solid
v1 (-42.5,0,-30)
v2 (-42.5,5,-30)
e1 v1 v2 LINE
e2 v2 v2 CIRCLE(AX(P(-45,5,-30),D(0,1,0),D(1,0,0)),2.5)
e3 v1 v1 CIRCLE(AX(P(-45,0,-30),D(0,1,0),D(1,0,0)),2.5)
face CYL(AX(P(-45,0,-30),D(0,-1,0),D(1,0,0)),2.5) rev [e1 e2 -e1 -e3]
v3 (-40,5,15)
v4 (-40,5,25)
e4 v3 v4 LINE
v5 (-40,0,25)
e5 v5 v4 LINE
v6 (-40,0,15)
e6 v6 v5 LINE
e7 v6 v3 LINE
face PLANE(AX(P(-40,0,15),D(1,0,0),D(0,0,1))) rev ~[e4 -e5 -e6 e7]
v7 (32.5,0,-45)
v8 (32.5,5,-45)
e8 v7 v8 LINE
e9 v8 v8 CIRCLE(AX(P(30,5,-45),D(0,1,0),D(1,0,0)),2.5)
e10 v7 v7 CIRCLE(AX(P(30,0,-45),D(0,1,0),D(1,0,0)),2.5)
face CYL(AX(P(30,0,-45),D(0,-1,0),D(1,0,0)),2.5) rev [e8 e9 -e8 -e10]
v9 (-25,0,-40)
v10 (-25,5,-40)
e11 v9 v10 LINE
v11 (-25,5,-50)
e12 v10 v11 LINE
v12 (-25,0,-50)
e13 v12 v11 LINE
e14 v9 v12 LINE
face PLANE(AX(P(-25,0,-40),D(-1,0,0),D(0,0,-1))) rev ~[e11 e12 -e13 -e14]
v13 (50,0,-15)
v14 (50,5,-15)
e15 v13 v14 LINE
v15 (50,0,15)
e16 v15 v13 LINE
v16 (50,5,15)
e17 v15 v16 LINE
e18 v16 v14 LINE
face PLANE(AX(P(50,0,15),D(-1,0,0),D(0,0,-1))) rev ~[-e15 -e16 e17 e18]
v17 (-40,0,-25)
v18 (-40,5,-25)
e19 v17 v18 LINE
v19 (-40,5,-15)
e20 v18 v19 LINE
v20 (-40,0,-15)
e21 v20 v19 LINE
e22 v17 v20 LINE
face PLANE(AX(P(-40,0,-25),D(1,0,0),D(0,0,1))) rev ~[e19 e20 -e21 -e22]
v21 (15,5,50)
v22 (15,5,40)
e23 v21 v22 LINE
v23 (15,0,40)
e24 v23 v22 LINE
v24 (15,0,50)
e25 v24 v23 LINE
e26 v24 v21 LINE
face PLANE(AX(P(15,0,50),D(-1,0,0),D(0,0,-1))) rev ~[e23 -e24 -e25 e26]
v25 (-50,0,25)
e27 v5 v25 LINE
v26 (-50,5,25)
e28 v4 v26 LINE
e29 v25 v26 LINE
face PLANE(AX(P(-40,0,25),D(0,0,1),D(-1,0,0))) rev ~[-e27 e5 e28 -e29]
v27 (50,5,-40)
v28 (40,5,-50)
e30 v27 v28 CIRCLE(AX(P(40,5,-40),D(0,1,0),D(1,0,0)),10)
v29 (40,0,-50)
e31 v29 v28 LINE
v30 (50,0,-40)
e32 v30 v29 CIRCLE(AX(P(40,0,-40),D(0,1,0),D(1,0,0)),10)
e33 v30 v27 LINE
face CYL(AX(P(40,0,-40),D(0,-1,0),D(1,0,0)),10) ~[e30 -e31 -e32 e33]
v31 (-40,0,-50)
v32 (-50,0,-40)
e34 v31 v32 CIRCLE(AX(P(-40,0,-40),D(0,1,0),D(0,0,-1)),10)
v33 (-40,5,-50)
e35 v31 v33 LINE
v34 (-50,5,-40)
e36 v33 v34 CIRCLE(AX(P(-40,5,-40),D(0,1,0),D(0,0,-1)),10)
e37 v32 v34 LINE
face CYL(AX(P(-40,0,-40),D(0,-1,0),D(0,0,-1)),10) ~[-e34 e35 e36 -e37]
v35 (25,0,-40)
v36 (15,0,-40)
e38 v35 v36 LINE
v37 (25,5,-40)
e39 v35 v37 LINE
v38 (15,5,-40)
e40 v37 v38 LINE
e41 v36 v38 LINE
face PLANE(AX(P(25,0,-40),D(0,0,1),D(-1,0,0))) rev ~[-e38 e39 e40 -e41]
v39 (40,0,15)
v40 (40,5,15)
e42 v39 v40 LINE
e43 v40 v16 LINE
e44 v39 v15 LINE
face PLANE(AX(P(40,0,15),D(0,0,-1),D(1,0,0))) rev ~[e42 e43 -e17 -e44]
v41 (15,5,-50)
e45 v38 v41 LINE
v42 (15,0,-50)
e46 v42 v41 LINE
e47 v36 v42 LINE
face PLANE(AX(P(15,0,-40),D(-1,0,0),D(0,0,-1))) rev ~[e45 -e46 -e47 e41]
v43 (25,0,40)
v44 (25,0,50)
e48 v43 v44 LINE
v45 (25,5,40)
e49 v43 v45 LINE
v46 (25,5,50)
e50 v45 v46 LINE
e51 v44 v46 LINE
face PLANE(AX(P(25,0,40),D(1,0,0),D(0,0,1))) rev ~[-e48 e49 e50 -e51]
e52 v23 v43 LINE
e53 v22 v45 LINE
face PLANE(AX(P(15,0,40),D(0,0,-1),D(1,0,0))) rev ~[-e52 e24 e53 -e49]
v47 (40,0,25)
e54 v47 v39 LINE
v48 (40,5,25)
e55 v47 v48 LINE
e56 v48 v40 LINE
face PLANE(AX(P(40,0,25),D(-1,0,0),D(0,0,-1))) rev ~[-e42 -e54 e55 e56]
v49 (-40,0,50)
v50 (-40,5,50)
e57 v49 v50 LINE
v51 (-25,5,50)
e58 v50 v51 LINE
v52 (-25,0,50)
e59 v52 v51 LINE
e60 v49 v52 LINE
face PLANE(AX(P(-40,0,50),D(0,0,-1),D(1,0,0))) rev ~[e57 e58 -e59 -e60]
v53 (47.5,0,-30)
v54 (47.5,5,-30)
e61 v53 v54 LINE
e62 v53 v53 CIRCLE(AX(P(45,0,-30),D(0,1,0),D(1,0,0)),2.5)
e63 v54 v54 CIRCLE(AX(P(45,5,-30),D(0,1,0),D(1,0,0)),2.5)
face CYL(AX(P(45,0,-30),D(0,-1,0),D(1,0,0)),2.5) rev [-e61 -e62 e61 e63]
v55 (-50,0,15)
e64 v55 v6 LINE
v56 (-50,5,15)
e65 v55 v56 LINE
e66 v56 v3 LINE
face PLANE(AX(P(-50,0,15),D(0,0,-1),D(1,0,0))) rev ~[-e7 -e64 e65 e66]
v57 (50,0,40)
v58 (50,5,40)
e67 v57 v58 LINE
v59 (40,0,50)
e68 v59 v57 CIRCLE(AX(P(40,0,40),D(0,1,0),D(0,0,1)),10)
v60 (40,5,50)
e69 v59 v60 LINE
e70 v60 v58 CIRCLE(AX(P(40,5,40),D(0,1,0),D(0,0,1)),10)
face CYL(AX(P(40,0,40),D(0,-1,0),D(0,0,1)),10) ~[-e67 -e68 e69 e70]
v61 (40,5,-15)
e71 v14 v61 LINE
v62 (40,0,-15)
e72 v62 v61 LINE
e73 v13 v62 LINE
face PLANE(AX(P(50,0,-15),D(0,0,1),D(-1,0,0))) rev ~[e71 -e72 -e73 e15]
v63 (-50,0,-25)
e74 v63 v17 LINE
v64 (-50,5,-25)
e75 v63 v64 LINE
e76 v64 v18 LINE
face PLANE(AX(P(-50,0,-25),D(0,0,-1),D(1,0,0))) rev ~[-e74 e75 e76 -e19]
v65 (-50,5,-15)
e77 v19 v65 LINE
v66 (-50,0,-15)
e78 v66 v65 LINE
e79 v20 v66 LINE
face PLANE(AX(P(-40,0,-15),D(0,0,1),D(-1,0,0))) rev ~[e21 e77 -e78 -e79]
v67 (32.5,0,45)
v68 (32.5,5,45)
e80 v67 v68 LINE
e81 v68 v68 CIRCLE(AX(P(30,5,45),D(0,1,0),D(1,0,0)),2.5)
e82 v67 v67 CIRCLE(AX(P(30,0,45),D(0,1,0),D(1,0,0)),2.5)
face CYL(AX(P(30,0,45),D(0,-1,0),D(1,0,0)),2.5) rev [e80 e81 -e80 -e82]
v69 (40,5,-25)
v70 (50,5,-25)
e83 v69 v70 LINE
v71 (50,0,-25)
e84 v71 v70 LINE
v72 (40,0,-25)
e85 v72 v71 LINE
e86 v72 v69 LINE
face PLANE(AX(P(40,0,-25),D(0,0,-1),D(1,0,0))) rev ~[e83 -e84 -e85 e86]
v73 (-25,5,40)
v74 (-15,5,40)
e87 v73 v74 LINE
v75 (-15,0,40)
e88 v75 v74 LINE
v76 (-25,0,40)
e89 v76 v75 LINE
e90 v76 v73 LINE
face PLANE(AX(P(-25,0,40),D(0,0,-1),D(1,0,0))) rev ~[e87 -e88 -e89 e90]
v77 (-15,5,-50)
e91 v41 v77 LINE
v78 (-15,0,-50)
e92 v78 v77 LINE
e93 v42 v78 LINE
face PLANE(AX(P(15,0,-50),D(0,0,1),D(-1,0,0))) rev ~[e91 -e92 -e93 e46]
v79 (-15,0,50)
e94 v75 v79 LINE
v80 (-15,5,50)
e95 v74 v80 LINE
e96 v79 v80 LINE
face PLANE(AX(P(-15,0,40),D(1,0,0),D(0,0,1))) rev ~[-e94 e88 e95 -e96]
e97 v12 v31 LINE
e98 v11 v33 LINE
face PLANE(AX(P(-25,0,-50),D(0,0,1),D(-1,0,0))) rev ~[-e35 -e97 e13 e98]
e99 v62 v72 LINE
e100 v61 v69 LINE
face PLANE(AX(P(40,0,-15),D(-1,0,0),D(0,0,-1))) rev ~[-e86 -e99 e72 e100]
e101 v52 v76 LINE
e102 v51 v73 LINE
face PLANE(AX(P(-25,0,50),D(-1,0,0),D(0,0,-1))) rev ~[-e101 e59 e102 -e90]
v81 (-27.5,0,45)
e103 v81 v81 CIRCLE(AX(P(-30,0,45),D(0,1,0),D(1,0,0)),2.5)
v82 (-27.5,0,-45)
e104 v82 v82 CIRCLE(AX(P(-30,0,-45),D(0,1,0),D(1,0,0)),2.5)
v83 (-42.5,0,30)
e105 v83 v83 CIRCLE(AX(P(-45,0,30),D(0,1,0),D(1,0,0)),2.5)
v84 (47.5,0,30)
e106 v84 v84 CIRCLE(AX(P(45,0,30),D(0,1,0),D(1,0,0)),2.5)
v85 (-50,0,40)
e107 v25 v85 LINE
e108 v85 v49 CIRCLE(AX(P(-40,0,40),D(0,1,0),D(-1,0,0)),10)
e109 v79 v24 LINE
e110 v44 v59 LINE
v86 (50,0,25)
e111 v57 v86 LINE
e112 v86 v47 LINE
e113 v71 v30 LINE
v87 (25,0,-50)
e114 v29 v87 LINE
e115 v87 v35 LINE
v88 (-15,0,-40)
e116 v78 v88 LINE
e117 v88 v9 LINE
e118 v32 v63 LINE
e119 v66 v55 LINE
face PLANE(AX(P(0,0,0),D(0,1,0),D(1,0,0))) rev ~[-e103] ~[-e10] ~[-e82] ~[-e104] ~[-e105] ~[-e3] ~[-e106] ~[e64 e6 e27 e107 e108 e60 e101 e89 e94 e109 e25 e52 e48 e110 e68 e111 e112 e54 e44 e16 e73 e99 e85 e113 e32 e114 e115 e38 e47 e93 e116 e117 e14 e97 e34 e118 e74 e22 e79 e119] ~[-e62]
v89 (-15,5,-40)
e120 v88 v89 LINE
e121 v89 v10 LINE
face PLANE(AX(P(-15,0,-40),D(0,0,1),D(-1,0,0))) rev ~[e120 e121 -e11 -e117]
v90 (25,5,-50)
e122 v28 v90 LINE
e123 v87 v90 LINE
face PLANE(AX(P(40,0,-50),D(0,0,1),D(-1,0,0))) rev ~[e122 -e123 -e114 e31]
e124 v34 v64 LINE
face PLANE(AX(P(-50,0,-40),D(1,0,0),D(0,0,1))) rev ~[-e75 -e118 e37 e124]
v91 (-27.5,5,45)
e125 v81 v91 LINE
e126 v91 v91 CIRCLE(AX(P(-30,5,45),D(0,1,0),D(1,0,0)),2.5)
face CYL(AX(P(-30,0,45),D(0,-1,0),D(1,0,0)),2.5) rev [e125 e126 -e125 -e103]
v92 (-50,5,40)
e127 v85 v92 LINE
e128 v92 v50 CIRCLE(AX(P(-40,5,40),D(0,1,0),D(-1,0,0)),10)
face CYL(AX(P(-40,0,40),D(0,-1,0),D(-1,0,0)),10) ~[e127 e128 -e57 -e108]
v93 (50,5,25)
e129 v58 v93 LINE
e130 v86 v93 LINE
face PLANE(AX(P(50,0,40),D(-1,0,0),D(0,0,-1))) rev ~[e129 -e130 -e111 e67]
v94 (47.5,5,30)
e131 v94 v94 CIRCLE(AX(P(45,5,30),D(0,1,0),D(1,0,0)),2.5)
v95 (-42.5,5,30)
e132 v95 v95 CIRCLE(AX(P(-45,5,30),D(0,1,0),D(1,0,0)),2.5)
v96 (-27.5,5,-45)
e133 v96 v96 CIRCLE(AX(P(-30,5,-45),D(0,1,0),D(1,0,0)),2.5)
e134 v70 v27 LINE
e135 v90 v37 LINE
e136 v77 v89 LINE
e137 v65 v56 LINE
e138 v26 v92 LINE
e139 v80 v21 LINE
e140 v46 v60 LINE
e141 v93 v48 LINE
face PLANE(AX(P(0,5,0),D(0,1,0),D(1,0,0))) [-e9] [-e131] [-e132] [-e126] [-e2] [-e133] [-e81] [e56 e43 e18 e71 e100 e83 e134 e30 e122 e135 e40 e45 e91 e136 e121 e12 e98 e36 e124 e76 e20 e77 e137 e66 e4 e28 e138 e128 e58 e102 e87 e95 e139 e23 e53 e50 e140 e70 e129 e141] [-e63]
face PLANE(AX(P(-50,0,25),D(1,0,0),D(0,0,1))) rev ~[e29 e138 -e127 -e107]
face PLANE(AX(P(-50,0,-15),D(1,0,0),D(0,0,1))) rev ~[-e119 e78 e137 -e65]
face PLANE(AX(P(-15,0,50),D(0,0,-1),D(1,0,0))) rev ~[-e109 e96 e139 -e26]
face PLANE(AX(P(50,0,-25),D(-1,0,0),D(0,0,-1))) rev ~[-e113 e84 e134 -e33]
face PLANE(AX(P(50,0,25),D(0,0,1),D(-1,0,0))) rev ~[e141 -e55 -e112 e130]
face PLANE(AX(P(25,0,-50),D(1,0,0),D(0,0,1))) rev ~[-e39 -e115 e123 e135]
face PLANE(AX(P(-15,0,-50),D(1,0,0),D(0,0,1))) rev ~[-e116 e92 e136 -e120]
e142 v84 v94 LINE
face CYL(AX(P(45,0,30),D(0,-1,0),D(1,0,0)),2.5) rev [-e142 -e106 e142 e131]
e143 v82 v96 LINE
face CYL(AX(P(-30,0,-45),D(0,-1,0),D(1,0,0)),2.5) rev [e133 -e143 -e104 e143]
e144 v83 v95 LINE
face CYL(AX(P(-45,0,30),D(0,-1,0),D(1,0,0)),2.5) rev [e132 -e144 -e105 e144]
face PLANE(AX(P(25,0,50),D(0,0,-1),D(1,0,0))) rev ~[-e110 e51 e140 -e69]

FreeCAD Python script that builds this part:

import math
import FreeCAD as App
import Part
import Sketcher
from FreeCAD import Vector

doc = App.newDocument("Part")
body = doc.addObject("PartDesign::Body", "Body")

# Sketch on XZ plane
sketch1 = doc.addObject("Sketcher::SketchObject", "Sketch")
body.addObject(sketch1)
sketch1.AttachmentSupport = (doc.XZ_Plane, [""])
sketch1.MapMode = "FlatFace"
sketch1.addGeometry([
    Part.LineSegment(Vector(25, 50, 0), Vector(40, 50, 0)),  # 0
    Part.ArcOfCircle(Part.Circle(Vector(40, 40, 0), Vector(0, 0, 1), 10), math.radians(0), math.radians(90)),  # 1
    Part.LineSegment(Vector(50, 40, 0), Vector(50, 25, 0)),  # 2
    Part.LineSegment(Vector(50, 25, 0), Vector(40, 25, 0)),  # 3
    Part.LineSegment(Vector(40, 25, 0), Vector(40, 15, 0)),  # 4
    Part.LineSegment(Vector(40, 15, 0), Vector(50, 15, 0)),  # 5
    Part.LineSegment(Vector(50, 15, 0), Vector(50, -15, 0)),  # 6
    Part.LineSegment(Vector(50, -15, 0), Vector(40, -15, 0)),  # 7
    Part.LineSegment(Vector(40, -15, 0), Vector(40, -25, 0)),  # 8
    Part.LineSegment(Vector(40, -25, 0), Vector(50, -25, 0)),  # 9
    Part.LineSegment(Vector(50, -25, 0), Vector(50, -40, 0)),  # 10
    Part.ArcOfCircle(Part.Circle(Vector(40, -40, 0), Vector(0, 0, 1), 10), math.radians(-90), math.radians(0)),  # 11
    Part.LineSegment(Vector(40, -50, 0), Vector(25, -50, 0)),  # 12
    Part.LineSegment(Vector(25, -50, 0), Vector(25, -40, 0)),  # 13
    Part.LineSegment(Vector(25, -40, 0), Vector(15, -40, 0)),  # 14
    Part.LineSegment(Vector(15, -40, 0), Vector(15, -50, 0)),  # 15
    Part.LineSegment(Vector(15, -50, 0), Vector(-15, -50, 0)),  # 16
    Part.LineSegment(Vector(-15, -50, 0), Vector(-15, -40, 0)),  # 17
    Part.LineSegment(Vector(-15, -40, 0), Vector(-25, -40, 0)),  # 18
    Part.LineSegment(Vector(-25, -40, 0), Vector(-25, -50, 0)),  # 19
    Part.LineSegment(Vector(-25, -50, 0), Vector(-40, -50, 0)),  # 20
    Part.ArcOfCircle(Part.Circle(Vector(-40, -40, 0), Vector(0, 0, 1), 10), math.radians(180), math.radians(270)),  # 21
    Part.LineSegment(Vector(-50, -40, 0), Vector(-50, -25, 0)),  # 22
    Part.LineSegment(Vector(-50, -25, 0), Vector(-40, -25, 0)),  # 23
    Part.LineSegment(Vector(-40, -25, 0), Vector(-40, -15, 0)),  # 24
    Part.LineSegment(Vector(-40, -15, 0), Vector(-50, -15, 0)),  # 25
    Part.LineSegment(Vector(-50, -15, 0), Vector(-50, 15, 0)),  # 26
    Part.LineSegment(Vector(-50, 15, 0), Vector(-40, 15, 0)),  # 27
    Part.LineSegment(Vector(-40, 15, 0), Vector(-40, 25, 0)),  # 28
    Part.LineSegment(Vector(-40, 25, 0), Vector(-50, 25, 0)),  # 29
    Part.LineSegment(Vector(-50, 25, 0), Vector(-50, 40, 0)),  # 30
    Part.ArcOfCircle(Part.Circle(Vector(-40, 40, 0), Vector(0, 0, 1), 10), math.radians(90), math.radians(180)),  # 31
    Part.LineSegment(Vector(-40, 50, 0), Vector(-25, 50, 0)),  # 32
    Part.LineSegment(Vector(-25, 50, 0), Vector(-25, 40, 0)),  # 33
    Part.LineSegment(Vector(-25, 40, 0), Vector(-15, 40, 0)),  # 34
    Part.LineSegment(Vector(-15, 40, 0), Vector(-15, 50, 0)),  # 35
    Part.LineSegment(Vector(-15, 50, 0), Vector(15, 50, 0)),  # 36
    Part.LineSegment(Vector(15, 50, 0), Vector(15, 40, 0)),  # 37
    Part.LineSegment(Vector(15, 40, 0), Vector(25, 40, 0)),  # 38
    Part.LineSegment(Vector(25, 40, 0), Vector(25, 50, 0)),  # 39
    Part.Circle(Vector(-30, 45, 0), Vector(0, 0, 1), 2.5),  # 40
    Part.Circle(Vector(-45, 30, 0), Vector(0, 0, 1), 2.5),  # 41
    Part.Circle(Vector(30, 45, 0), Vector(0, 0, 1), 2.5),  # 42
    Part.Circle(Vector(45, 30, 0), Vector(0, 0, 1), 2.5),  # 43
    Part.Circle(Vector(-45, -30, 0), Vector(0, 0, 1), 2.5),  # 44
    Part.Circle(Vector(-30, -45, 0), Vector(0, 0, 1), 2.5),  # 45
    Part.Circle(Vector(45, -30, 0), Vector(0, 0, 1), 2.5),  # 46
    Part.Circle(Vector(30, -45, 0), Vector(0, 0, 1), 2.5),  # 47
], False)
sketch1.addConstraint([
    Sketcher.Constraint("Tangent", 0, 2, 1, 2),
    Sketcher.Constraint("Tangent", 1, 1, 2, 1),
    Sketcher.Constraint("Coincident", 2, 2, 3, 1),
    Sketcher.Constraint("Coincident", 3, 2, 4, 1),
    Sketcher.Constraint("Coincident", 4, 2, 5, 1),
    Sketcher.Constraint("Coincident", 5, 2, 6, 1),
    Sketcher.Constraint("Coincident", 6, 2, 7, 1),
    Sketcher.Constraint("Coincident", 7, 2, 8, 1),
    Sketcher.Constraint("Coincident", 8, 2, 9, 1),
    Sketcher.Constraint("Coincident", 9, 2, 10, 1),
    Sketcher.Constraint("Tangent", 10, 2, 11, 2),
    Sketcher.Constraint("Tangent", 11, 1, 12, 1),
    Sketcher.Constraint("Coincident", 12, 2, 13, 1),
    Sketcher.Constraint("Coincident", 13, 2, 14, 1),
    Sketcher.Constraint("Coincident", 14, 2, 15, 1),
    Sketcher.Constraint("Coincident", 15, 2, 16, 1),
    Sketcher.Constraint("Coincident", 16, 2, 17, 1),
    Sketcher.Constraint("Coincident", 17, 2, 18, 1),
    Sketcher.Constraint("Coincident", 18, 2, 19, 1),
    Sketcher.Constraint("Coincident", 19, 2, 20, 1),
    Sketcher.Constraint("Tangent", 20, 2, 21, 2),
    Sketcher.Constraint("Tangent", 21, 1, 22, 1),
    Sketcher.Constraint("Coincident", 22, 2, 23, 1),
    Sketcher.Constraint("Coincident", 23, 2, 24, 1),
    Sketcher.Constraint("Coincident", 24, 2, 25, 1),
    Sketcher.Constraint("Coincident", 25, 2, 26, 1),
    Sketcher.Constraint("Coincident", 26, 2, 27, 1),
    Sketcher.Constraint("Coincident", 27, 2, 28, 1),
    Sketcher.Constraint("Coincident", 28, 2, 29, 1),
    Sketcher.Constraint("Coincident", 29, 2, 30, 1),
    Sketcher.Constraint("Tangent", 30, 2, 31, 2),
    Sketcher.Constraint("Tangent", 31, 1, 32, 1),
    Sketcher.Constraint("Coincident", 32, 2, 33, 1),
    Sketcher.Constraint("Coincident", 33, 2, 34, 1),
    Sketcher.Constraint("Coincident", 34, 2, 35, 1),
    Sketcher.Constraint("Coincident", 35, 2, 36, 1),
    Sketcher.Constraint("Coincident", 36, 2, 37, 1),
    Sketcher.Constraint("Coincident", 37, 2, 38, 1),
    Sketcher.Constraint("Coincident", 38, 2, 39, 1),
    Sketcher.Constraint("Coincident", 39, 2, 0, 1),
    Sketcher.Constraint("Horizontal", 0),
    Sketcher.Constraint("Vertical", 2),
    Sketcher.Constraint("Horizontal", 3),
    Sketcher.Constraint("Vertical", 4),
    Sketcher.Constraint("Horizontal", 5),
    Sketcher.Constraint("Vertical", 6),
    Sketcher.Constraint("Horizontal", 7),
    Sketcher.Constraint("Vertical", 8),
    Sketcher.Constraint("Horizontal", 9),
    Sketcher.Constraint("Vertical", 10),
    Sketcher.Constraint("Horizontal", 12),
    Sketcher.Constraint("Vertical", 13),
    Sketcher.Constraint("Horizontal", 14),
    Sketcher.Constraint("Vertical", 15),
    Sketcher.Constraint("Horizontal", 16),
    Sketcher.Constraint("Vertical", 17),
    Sketcher.Constraint("Horizontal", 18),
    Sketcher.Constraint("Vertical", 19),
    Sketcher.Constraint("Horizontal", 20),
    Sketcher.Constraint("Vertical", 22),
    Sketcher.Constraint("Horizontal", 23),
    Sketcher.Constraint("Vertical", 24),
    Sketcher.Constraint("Horizontal", 25),
    Sketcher.Constraint("Vertical", 26),
    Sketcher.Constraint("Horizontal", 27),
    Sketcher.Constraint("Vertical", 28),
    Sketcher.Constraint("Horizontal", 29),
    Sketcher.Constraint("Vertical", 30),
    Sketcher.Constraint("Horizontal", 32),
    Sketcher.Constraint("Vertical", 33),
    Sketcher.Constraint("Horizontal", 34),
    Sketcher.Constraint("Vertical", 35),
    Sketcher.Constraint("Horizontal", 36),
    Sketcher.Constraint("Vertical", 37),
    Sketcher.Constraint("Horizontal", 38),
    Sketcher.Constraint("Vertical", 39),
    Sketcher.Constraint("Equal", 1, 11),
    Sketcher.Constraint("Equal", 11, 21),
    Sketcher.Constraint("Equal", 21, 31),
    Sketcher.Constraint("Equal", 40, 41),
    Sketcher.Constraint("Equal", 41, 42),
    Sketcher.Constraint("Equal", 42, 43),
    Sketcher.Constraint("Equal", 43, 44),
    Sketcher.Constraint("Equal", 44, 45),
    Sketcher.Constraint("Equal", 45, 46),
    Sketcher.Constraint("Equal", 46, 47),
    Sketcher.Constraint("Symmetric", 1, 3, 21, 3, -1, 1),
    Sketcher.Constraint("Symmetric", 11, 3, 31, 3, -1, 1),
    Sketcher.Constraint("Symmetric", 43, 3, 44, 3, -1, 1),
    Sketcher.Constraint("Symmetric", 42, 3, 45, 3, -1, 1),
    Sketcher.Constraint("Symmetric", 41, 3, 46, 3, -1, 1),
    Sketcher.Constraint("Symmetric", 40, 3, 47, 3, -1, 1),
    Sketcher.Constraint("Symmetric", 3, 2, 23, 2, -1, 1),
    Sketcher.Constraint("Symmetric", 5, 2, 25, 2, -1, 1),
    Sketcher.Constraint("Symmetric", 7, 2, 27, 2, -1, 1),
    Sketcher.Constraint("Symmetric", 13, 2, 33, 2, -1, 1),
    Sketcher.Constraint("Symmetric", 15, 2, 35, 2, -1, 1),
    Sketcher.Constraint("Symmetric", 17, 2, 37, 2, -1, 1),
    Sketcher.Constraint("Symmetric", 11, 3, 21, 3, -2),
    Sketcher.Constraint("Symmetric", 40, 3, 42, 3, -2),
    Sketcher.Constraint("Symmetric", 41, 3, 43, 3, -2),
    Sketcher.Constraint("Symmetric", 14, 2, 17, 2, -2),
    Sketcher.Constraint("Symmetric", 8, 2, 23, 2, -2),
    Sketcher.Constraint("Horizontal", 10, 2, 13, 2),
    Sketcher.Constraint("Horizontal", 12, 2, 15, 2),
    Sketcher.Constraint("Horizontal", 7, 2, 24, 2),
    Sketcher.Constraint("Horizontal", 3, 2, 28, 2),
    Sketcher.Constraint("Vertical", 0, 2, 3, 2),
    Sketcher.Constraint("Vertical", 2, 2, 5, 2),
    Sketcher.Constraint("Vertical", 19, 2, 32, 2),
    Sketcher.Constraint("Vertical", 13, 2, 38, 2),
    Sketcher.Constraint("Equal", 9, 14),
    Sketcher.Constraint("Equal", 32, 2),
    Sketcher.Constraint("Equal", 38, 4),
    Sketcher.Constraint("Equal", 36, 6),
    Sketcher.Constraint("Diameter", 40, 5.0),
    Sketcher.Constraint("Radius", 1, 10.0),
    Sketcher.Constraint("DistanceX", 0, 1, 0, 2, 15.0),
    Sketcher.Constraint("DistanceX", 16, 2, 16, 1, 30.0),
    Sketcher.Constraint("DistanceX", 40, 3, -1, 1, 30.0),
    Sketcher.Constraint("DistanceY", -1, 1, 40, 3, 45.0),
    Sketcher.Constraint("DistanceX", 41, 3, -1, 1, 45.0),
    Sketcher.Constraint("DistanceY", -1, 1, 41, 3, 30.0),
])
pad1 = doc.addObject("PartDesign::Pad", "Pad")
body.addObject(pad1)
pad1.Profile = sketch1
pad1.Length = 5
pad1.Reversed = True

doc.recompute()
